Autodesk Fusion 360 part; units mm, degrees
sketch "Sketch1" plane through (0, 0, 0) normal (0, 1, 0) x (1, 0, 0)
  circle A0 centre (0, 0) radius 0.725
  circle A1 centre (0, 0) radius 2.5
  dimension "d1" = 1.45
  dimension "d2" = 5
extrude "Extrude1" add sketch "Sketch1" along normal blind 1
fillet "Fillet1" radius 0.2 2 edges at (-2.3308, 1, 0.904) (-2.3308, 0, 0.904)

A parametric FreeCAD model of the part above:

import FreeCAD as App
import Part
import Sketcher


def edges_at(feature, points):
    """Names of the edges that pass closest to the given points."""
    edges = feature.Shape.Edges
    near = lambda p: min(range(len(edges)), key=lambda i: edges[i].distToShape(Part.Vertex(*p))[0])
    return sorted({f"Edge{near(p) + 1}" for p in points})

doc = App.newDocument("Part")
body = doc.addObject("PartDesign::Body", "Body")

sketch1 = body.newObject("Sketcher::SketchObject", "Sketch")
sketch1.AttachmentSupport = (doc.getObject("XZ_Plane"), [""])
sketch1.MapMode = "FlatFace"
sketch1.addGeometry([
    Part.Circle(App.Vector(0, 0, 0), App.Vector(0, 0, 1), 2.5),
    Part.Circle(App.Vector(0, 0, 0), App.Vector(0, 0, 1), 0.7),
], False)
sketch1.addConstraint([
    Sketcher.Constraint("Coincident", 0, 3, -1, 1),
    Sketcher.Constraint("Coincident", 1, 3, -1, 1),
    Sketcher.Constraint("Diameter", 0, 5.0),
    Sketcher.Constraint("Diameter", 1, 1.45),
])
pad1 = body.newObject("PartDesign::Pad", "Pad")
pad1.Profile = sketch1
pad1.Length = 1
pad1.Reversed = True
doc.recompute()

fillet = body.newObject("PartDesign::Fillet", "Fillet")
fillet.Base = (pad1, edges_at(pad1, [(-2.331, 1, 0.904), (-2.331, 0, 0.904)]))
fillet.Radius = 0.2

doc.recompute()
